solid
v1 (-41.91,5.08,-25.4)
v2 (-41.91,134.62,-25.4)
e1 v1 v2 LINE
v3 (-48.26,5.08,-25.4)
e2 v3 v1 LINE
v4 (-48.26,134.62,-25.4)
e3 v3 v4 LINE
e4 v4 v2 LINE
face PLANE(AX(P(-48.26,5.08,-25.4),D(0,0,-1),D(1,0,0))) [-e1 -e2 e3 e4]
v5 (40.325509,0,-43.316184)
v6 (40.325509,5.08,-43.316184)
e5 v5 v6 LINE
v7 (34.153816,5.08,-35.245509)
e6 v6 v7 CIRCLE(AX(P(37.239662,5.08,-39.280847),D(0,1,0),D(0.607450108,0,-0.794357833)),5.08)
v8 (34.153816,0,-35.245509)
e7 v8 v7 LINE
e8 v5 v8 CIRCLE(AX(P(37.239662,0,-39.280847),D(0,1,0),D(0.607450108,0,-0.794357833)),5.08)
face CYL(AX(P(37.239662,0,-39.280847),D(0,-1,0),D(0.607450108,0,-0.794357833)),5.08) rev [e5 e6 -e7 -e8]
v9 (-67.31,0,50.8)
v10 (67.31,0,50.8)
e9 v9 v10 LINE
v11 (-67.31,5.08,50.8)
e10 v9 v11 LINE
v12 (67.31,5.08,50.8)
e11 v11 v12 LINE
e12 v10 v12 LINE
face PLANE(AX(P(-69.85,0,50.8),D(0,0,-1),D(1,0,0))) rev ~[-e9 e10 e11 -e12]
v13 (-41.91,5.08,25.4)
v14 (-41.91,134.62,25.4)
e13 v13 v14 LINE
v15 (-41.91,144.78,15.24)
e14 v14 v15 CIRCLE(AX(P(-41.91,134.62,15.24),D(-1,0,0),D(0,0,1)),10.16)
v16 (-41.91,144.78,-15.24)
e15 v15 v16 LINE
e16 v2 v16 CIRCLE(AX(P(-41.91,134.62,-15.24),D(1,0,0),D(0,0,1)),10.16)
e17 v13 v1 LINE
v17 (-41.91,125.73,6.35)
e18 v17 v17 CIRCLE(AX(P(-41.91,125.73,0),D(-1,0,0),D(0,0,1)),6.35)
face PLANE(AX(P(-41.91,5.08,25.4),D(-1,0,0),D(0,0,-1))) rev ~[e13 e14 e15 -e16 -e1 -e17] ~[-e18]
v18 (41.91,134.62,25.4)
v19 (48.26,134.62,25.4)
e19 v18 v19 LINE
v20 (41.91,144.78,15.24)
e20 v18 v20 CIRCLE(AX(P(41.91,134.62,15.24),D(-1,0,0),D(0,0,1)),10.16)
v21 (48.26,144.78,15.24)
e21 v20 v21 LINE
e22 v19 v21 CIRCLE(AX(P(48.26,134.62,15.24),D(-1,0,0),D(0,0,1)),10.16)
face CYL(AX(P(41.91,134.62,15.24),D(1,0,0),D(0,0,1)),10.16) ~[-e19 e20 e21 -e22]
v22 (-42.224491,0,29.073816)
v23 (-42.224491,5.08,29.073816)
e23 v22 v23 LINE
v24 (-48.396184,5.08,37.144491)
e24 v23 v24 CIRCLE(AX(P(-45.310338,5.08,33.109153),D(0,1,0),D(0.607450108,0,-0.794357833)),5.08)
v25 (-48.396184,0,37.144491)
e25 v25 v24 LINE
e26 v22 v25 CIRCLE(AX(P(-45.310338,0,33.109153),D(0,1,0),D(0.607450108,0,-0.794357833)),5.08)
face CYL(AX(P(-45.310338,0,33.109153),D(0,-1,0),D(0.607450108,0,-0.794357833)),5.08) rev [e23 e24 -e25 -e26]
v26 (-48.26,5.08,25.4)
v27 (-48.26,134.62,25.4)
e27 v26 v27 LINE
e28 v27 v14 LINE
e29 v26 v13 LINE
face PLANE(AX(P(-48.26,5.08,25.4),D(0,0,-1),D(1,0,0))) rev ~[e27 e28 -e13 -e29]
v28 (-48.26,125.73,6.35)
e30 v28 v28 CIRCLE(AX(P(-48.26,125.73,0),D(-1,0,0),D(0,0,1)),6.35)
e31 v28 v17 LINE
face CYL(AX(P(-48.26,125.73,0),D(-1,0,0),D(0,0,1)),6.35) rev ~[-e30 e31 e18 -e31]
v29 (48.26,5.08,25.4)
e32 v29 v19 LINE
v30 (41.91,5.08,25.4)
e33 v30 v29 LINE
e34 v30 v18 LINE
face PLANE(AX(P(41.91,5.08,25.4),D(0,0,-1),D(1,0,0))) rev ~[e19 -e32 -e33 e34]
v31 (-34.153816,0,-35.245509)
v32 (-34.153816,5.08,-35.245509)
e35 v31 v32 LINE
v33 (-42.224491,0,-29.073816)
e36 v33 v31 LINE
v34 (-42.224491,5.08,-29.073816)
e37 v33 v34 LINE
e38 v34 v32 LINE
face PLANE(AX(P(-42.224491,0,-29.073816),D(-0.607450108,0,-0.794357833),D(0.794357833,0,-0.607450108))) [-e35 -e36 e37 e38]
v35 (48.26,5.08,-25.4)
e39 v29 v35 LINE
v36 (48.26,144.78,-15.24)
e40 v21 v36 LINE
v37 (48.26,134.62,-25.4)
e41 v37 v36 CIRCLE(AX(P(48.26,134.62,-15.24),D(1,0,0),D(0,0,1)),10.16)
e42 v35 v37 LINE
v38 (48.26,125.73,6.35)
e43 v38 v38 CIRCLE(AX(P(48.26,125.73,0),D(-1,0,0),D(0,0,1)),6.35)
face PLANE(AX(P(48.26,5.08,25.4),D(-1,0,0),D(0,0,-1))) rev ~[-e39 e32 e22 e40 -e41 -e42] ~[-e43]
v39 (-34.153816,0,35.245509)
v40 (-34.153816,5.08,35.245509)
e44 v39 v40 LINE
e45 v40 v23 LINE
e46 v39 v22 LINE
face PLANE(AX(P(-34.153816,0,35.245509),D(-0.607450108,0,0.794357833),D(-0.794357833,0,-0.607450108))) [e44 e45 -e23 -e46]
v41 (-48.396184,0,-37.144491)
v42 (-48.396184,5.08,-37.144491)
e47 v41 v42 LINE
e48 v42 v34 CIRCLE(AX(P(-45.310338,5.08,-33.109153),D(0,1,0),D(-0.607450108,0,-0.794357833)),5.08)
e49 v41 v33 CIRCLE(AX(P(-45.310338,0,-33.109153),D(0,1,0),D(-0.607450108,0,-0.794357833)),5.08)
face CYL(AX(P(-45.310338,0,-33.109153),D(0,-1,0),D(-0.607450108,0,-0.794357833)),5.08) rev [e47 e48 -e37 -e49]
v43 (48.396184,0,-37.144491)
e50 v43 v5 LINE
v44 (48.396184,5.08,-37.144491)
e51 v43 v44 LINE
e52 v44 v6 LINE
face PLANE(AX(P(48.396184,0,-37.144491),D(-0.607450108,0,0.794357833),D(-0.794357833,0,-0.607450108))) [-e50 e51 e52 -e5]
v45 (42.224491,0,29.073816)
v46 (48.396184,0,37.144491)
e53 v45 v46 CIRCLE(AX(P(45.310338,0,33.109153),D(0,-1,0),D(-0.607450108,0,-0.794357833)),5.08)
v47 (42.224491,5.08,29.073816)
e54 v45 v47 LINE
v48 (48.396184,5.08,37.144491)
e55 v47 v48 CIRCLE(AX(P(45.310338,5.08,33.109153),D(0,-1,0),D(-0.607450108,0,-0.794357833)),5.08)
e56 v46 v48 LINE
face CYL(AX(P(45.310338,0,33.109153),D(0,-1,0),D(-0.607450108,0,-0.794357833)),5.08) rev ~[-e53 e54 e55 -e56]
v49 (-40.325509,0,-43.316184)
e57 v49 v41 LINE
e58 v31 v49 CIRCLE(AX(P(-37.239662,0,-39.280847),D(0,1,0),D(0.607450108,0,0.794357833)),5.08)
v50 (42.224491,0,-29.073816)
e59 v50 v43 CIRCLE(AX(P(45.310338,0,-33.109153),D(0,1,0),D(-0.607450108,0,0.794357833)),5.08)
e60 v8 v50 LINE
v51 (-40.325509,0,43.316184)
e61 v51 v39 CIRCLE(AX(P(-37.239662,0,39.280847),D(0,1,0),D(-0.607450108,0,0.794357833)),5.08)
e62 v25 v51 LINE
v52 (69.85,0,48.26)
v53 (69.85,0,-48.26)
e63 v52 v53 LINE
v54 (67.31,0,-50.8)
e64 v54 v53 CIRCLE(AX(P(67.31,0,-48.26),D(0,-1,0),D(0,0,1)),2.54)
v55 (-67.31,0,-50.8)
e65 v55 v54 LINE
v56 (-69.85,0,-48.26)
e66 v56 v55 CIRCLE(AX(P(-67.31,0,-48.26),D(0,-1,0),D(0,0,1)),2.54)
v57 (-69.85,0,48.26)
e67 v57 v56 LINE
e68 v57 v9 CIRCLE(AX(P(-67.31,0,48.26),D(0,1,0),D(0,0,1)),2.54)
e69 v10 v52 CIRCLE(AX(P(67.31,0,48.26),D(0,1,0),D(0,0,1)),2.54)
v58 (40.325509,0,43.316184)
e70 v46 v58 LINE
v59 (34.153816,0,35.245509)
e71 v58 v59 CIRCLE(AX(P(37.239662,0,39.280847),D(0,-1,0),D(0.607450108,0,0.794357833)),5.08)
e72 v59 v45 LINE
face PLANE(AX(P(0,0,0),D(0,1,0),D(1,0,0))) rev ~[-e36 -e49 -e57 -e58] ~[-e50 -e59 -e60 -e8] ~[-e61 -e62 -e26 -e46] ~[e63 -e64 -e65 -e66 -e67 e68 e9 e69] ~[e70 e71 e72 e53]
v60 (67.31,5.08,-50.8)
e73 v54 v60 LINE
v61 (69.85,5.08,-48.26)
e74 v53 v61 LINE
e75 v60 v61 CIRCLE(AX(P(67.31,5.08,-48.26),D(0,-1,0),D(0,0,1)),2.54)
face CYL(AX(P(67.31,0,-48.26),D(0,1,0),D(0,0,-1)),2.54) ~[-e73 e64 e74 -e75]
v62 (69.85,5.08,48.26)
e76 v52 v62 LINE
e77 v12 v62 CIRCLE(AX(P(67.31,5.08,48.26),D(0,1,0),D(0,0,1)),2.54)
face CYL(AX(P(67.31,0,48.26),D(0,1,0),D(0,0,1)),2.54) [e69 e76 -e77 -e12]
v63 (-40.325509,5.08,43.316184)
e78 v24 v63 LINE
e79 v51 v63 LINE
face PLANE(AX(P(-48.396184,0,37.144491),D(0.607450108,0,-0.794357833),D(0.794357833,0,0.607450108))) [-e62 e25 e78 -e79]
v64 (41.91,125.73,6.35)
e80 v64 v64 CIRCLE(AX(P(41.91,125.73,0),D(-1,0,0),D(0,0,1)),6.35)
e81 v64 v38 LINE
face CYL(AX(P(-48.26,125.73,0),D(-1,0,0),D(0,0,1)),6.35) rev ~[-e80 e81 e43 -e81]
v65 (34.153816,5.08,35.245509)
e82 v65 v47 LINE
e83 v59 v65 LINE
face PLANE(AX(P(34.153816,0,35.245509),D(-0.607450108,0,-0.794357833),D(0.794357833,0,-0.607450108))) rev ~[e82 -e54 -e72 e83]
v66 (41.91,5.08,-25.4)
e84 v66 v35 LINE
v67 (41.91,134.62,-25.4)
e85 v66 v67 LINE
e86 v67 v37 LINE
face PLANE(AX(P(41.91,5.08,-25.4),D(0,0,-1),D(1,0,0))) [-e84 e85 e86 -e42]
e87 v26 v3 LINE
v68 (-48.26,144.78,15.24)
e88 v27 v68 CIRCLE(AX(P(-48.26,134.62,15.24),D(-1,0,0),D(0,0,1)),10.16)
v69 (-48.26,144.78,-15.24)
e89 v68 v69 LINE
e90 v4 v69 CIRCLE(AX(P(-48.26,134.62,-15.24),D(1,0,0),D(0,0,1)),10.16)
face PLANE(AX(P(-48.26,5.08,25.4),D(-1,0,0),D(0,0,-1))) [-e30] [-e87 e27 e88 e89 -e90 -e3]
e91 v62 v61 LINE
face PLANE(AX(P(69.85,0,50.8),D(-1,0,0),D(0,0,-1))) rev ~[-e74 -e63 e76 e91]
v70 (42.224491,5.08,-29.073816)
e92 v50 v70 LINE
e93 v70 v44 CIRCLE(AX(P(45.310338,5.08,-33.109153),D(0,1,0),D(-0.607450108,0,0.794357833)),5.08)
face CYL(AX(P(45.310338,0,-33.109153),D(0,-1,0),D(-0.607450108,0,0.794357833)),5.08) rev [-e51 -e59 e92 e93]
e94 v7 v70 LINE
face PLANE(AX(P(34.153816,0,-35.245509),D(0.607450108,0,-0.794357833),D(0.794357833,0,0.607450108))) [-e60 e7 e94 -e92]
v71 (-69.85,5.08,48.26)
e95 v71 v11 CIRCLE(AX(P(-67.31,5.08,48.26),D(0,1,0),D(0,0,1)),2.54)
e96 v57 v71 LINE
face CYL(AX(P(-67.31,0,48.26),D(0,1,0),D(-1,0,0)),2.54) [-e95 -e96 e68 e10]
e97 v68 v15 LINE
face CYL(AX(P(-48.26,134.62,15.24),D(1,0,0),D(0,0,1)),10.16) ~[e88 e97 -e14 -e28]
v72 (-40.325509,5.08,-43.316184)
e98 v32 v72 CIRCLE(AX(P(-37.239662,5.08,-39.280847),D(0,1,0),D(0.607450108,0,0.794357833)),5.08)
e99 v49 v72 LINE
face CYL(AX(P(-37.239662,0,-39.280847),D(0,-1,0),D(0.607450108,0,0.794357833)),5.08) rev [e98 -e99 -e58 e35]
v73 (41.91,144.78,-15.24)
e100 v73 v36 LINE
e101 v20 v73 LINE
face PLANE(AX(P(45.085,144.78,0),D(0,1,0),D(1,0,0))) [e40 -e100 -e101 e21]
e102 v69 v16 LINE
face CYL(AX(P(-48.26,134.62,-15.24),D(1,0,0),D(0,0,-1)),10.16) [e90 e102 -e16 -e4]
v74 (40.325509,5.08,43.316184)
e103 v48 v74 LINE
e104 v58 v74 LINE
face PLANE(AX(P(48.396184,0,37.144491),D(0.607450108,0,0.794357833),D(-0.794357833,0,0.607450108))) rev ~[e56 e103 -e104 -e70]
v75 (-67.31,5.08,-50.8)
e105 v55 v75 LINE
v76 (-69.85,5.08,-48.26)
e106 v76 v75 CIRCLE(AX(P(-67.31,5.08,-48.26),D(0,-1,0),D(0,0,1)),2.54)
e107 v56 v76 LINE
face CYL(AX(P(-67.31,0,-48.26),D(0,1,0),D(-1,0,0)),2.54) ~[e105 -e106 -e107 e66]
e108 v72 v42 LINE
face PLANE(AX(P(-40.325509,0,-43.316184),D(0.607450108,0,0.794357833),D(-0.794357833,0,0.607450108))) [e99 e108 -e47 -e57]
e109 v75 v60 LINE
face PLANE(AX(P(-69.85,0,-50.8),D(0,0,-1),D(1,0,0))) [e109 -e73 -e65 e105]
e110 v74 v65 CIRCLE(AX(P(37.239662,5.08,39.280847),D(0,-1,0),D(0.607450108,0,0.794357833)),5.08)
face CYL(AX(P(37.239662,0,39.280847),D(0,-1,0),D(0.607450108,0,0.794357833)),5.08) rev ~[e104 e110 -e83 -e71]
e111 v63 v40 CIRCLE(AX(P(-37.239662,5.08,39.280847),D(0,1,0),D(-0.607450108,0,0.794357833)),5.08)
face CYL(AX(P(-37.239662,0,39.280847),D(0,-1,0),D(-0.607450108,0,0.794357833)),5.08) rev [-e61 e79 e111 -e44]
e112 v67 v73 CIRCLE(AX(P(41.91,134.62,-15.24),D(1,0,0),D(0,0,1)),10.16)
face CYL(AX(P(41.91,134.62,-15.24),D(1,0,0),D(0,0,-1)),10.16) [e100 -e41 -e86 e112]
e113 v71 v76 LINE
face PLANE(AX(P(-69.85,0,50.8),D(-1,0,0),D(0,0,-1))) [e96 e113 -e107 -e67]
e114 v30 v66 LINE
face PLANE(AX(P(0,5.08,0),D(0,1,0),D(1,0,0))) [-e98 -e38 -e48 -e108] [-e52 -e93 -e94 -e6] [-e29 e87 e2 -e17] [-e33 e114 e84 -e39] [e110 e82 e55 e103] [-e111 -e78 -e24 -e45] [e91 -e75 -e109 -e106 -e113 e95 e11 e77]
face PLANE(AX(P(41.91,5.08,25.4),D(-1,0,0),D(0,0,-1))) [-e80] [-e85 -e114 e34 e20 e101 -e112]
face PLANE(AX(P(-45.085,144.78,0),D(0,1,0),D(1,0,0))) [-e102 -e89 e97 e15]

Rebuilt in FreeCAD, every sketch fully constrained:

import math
import FreeCAD as App
import Part
import Sketcher

V = App.Vector
Q = App.Units.Quantity


def edges_at(feature, points):
    """Names of the edges that pass closest to the given points."""
    edges = feature.Shape.Edges
    near = lambda p: min(range(len(edges)), key=lambda i: edges[i].distToShape(Part.Vertex(*p))[0])
    return sorted({f"Edge{near(p) + 1}" for p in points})


def add_polygon(sketch, points):
    """Adds a closed chain of lines whose ends are joined by coincident constraints."""
    first, n = sketch.GeometryCount, len(points)
    for a, b in zip(points, points[1:] + points[:1]):
        sketch.addGeometry(Part.LineSegment(App.Vector(*a, 0), App.Vector(*b, 0)), False)
    for i in range(n):
        sketch.addConstraint(Sketcher.Constraint("Coincident", first + i, 2, first + (i + 1) % n, 1))

doc = App.newDocument("Part")
body = doc.addObject("PartDesign::Body", "Body")

# Sketch on XZ plane
sketch1 = doc.addObject("Sketcher::SketchObject", "Sketch")
body.addObject(sketch1)
sketch1.AttachmentSupport = (doc.XZ_Plane, [""])
sketch1.MapMode = "FlatFace"
add_polygon(sketch1, [(-70, -51), (-70, 51), (70, 51), (70, -51)])  # lines 0-3
sketch1.addGeometry(Part.ArcOfCircle(Part.Circle(V(-37, 39, 0), V(0, 0, 1), 5), math.radians(-53), math.radians(127)), False)  # 4
sketch1.addGeometry(Part.LineSegment(V(-40, 43, 0), V(-48, 37, 0)), False)  # 5
sketch1.addGeometry(Part.ArcOfCircle(Part.Circle(V(-45, 33, 0), V(0, 0, 1), 5), math.radians(127), math.radians(307)), False)  # 6
sketch1.addGeometry(Part.LineSegment(V(-42, 29, 0), V(-34, 35, 0)), False)  # 7
sketch1.addGeometry(Part.ArcOfCircle(Part.Circle(V(45, 33, 0), V(0, 0, 1), 5), math.radians(-127), math.radians(53)), False)  # 8
sketch1.addGeometry(Part.LineSegment(V(48, 37, 0), V(40, 43, 0)), False)  # 9
sketch1.addGeometry(Part.ArcOfCircle(Part.Circle(V(37, 39, 0), V(0, 0, 1), 5), math.radians(53), math.radians(233)), False)  # 10
sketch1.addGeometry(Part.LineSegment(V(34, 35, 0), V(42, 29, 0)), False)  # 11
sketch1.addGeometry(Part.ArcOfCircle(Part.Circle(V(-45, -33, 0), V(0, 0, 1), 5), math.radians(53), math.radians(233)), False)  # 12
sketch1.addGeometry(Part.LineSegment(V(-48, -37, 0), V(-40, -43, 0)), False)  # 13
sketch1.addGeometry(Part.ArcOfCircle(Part.Circle(V(-37, -39, 0), V(0, 0, 1), 5), math.radians(-127), math.radians(53)), False)  # 14
sketch1.addGeometry(Part.LineSegment(V(-34, -35, 0), V(-42, -29, 0)), False)  # 15
sketch1.addGeometry(Part.ArcOfCircle(Part.Circle(V(37, -39, 0), V(0, 0, 1), 5), math.radians(127), math.radians(307)), False)  # 16
sketch1.addGeometry(Part.LineSegment(V(40, -43, 0), V(48, -37, 0)), False)  # 17
sketch1.addGeometry(Part.ArcOfCircle(Part.Circle(V(45, -33, 0), V(0, 0, 1), 5), math.radians(-53), math.radians(127)), False)  # 18
sketch1.addGeometry(Part.LineSegment(V(42, -29, 0), V(34, -35, 0)), False)  # 19
sketch1.addConstraint(Sketcher.Constraint("Tangent", 4, 2, 5, 1))
sketch1.addConstraint(Sketcher.Constraint("Tangent", 5, 2, 6, 1))
sketch1.addConstraint(Sketcher.Constraint("Tangent", 6, 2, 7, 1))
sketch1.addConstraint(Sketcher.Constraint("Tangent", 7, 2, 4, 1))
sketch1.addConstraint(Sketcher.Constraint("Tangent", 8, 2, 9, 1))
sketch1.addConstraint(Sketcher.Constraint("Tangent", 9, 2, 10, 1))
sketch1.addConstraint(Sketcher.Constraint("Tangent", 10, 2, 11, 1))
sketch1.addConstraint(Sketcher.Constraint("Tangent", 11, 2, 8, 1))
sketch1.addConstraint(Sketcher.Constraint("Tangent", 12, 2, 13, 1))
sketch1.addConstraint(Sketcher.Constraint("Tangent", 13, 2, 14, 1))
sketch1.addConstraint(Sketcher.Constraint("Tangent", 14, 2, 15, 1))
sketch1.addConstraint(Sketcher.Constraint("Tangent", 15, 2, 12, 1))
sketch1.addConstraint(Sketcher.Constraint("Tangent", 16, 2, 17, 1))
sketch1.addConstraint(Sketcher.Constraint("Tangent", 17, 2, 18, 1))
sketch1.addConstraint(Sketcher.Constraint("Tangent", 18, 2, 19, 1))
sketch1.addConstraint(Sketcher.Constraint("Tangent", 19, 2, 16, 1))
sketch1.addConstraint(Sketcher.Constraint("Vertical", 0))
sketch1.addConstraint(Sketcher.Constraint("Horizontal", 1))
sketch1.addConstraint(Sketcher.Constraint("Vertical", 2))
sketch1.addConstraint(Sketcher.Constraint("Horizontal", 3))
sketch1.addConstraint(Sketcher.Constraint("Equal", 4, 6))
sketch1.addConstraint(Sketcher.Constraint("Equal", 6, 8))
sketch1.addConstraint(Sketcher.Constraint("Equal", 8, 10))
sketch1.addConstraint(Sketcher.Constraint("Equal", 10, 12))
sketch1.addConstraint(Sketcher.Constraint("Equal", 12, 14))
sketch1.addConstraint(Sketcher.Constraint("Equal", 14, 16))
sketch1.addConstraint(Sketcher.Constraint("Equal", 16, 18))
sketch1.addConstraint(Sketcher.Constraint("Symmetric", 8, 3, 12, 3, -1, 1))
sketch1.addConstraint(Sketcher.Constraint("Symmetric", 10, 3, 14, 3, -1, 1))
sketch1.addConstraint(Sketcher.Constraint("Symmetric", 4, 3, 16, 3, -1, 1))
sketch1.addConstraint(Sketcher.Constraint("Symmetric", 6, 3, 18, 3, -1, 1))
sketch1.addConstraint(Sketcher.Constraint("Symmetric", 0, 2, 2, 2, -1, 1))
sketch1.addConstraint(Sketcher.Constraint("Symmetric", 6, 3, 8, 3, -2))
sketch1.addConstraint(Sketcher.Constraint("Symmetric", 4, 3, 10, 3, -2))
sketch1.addConstraint(Sketcher.Constraint("Radius", 4, Q("0.2 in")))
sketch1.addConstraint(Sketcher.Constraint("DistanceY", 0, 1, 0, 2, Q("4 in")))
sketch1.addConstraint(Sketcher.Constraint("DistanceX", 1, 1, 1, 2, Q("5.5 in")))
sketch1.addConstraint(Sketcher.Constraint("Distance", 5, Q("0.4 in")))
sketch1.addConstraint(Sketcher.Constraint("DistanceX", 4, 3, 8, 3, Q("3.25 in")))
sketch1.addConstraint(Sketcher.Constraint("DistanceY", 12, 3, 4, 3, Q("2.85 in")))
sketch1.addConstraint(Sketcher.Constraint("DistanceX", 4, 2, -1, 1, Q("40.325509 mm")))
pad1 = doc.addObject("PartDesign::Pad", "Pad")
body.addObject(pad1)
pad1.Profile = sketch1
pad1.Length = Q("0.2 in")
pad1.Reversed = True
doc.recompute()

fillet = doc.addObject("PartDesign::Fillet", "Fillet")
body.addObject(fillet)
fillet.Base = (pad1, edges_at(pad1, [
    (69.85, 2.54, -50.8),
    (69.85, 2.54, 50.8),
    (-69.85, 2.54, 50.8),
    (-69.85, 2.54, -50.8),
]))
fillet.Radius = Q("0.1 in")

# Sketch on XZ plane
sketch2 = doc.addObject("Sketcher::SketchObject", "Sketch001")
body.addObject(sketch2)
sketch2.AttachmentSupport = (doc.XZ_Plane, [""])
sketch2.MapMode = "FlatFace"
sketch2.AttachmentOffset = App.Placement(V(0, 0, -0.2 * 25.4), App.Rotation())
add_polygon(sketch2, [(42, -25), (42, 25), (48, 25), (48, -25)])  # lines 0-3
add_polygon(sketch2, [(-48, -25), (-48, 25), (-42, 25), (-42, -25)])  # lines 4-7
sketch2.addConstraint(Sketcher.Constraint("Vertical", 0))
sketch2.addConstraint(Sketcher.Constraint("Horizontal", 1))
sketch2.addConstraint(Sketcher.Constraint("Vertical", 2))
sketch2.addConstraint(Sketcher.Constraint("Horizontal", 3))
sketch2.addConstraint(Sketcher.Constraint("Vertical", 4))
sketch2.addConstraint(Sketcher.Constraint("Horizontal", 5))
sketch2.addConstraint(Sketcher.Constraint("Vertical", 6))
sketch2.addConstraint(Sketcher.Constraint("Horizontal", 7))
sketch2.addConstraint(Sketcher.Constraint("Symmetric", 2, 2, 4, 2, -1, 1))
sketch2.addConstraint(Sketcher.Constraint("Symmetric", 0, 2, 6, 2, -1, 1))
sketch2.addConstraint(Sketcher.Constraint("Horizontal", 1, 2, 4, 2))
sketch2.addConstraint(Sketcher.Constraint("DistanceY", 0, 1, 0, 2, Q("2 in")))
sketch2.addConstraint(Sketcher.Constraint("DistanceX", 1, 1, 1, 2, Q("0.25 in")))
sketch2.addConstraint(Sketcher.Constraint("DistanceX", -1, 1, 1, 2, Q("1.9 in")))
pad2 = doc.addObject("PartDesign::Pad", "Pad001")
body.addObject(pad2)
pad2.Profile = sketch2
pad2.Length = Q("5.5 in")
pad2.Reversed = True
doc.recompute()

fillet2 = doc.addObject("PartDesign::Fillet", "Fillet001")
body.addObject(fillet2)
fillet2.Base = (pad2, edges_at(pad2, [
    (-45.085, 144.78, -25.4),
    (-45.085, 144.78, 25.4),
    (45.085, 144.78, -25.4),
    (45.085, 144.78, 25.4),
]))
fillet2.Radius = Q("0.4 in")

# Sketch on YZ plane
sketch3 = doc.addObject("Sketcher::SketchObject", "Sketch002")
body.addObject(sketch3)
sketch3.AttachmentSupport = (doc.YZ_Plane, [""])
sketch3.MapMode = "FlatFace"
sketch3.AttachmentOffset = App.Placement(V(0, 0, -1.9 * 25.4), App.Rotation())
sketch3.addGeometry(Part.Circle(V(126, 0, 0), V(0, 0, 1), 6), False)
sketch3.addConstraint(Sketcher.Constraint("PointOnObject", 0, 3, -1))
sketch3.addConstraint(Sketcher.Constraint("Diameter", 0, Q("0.5 in")))
sketch3.addConstraint(Sketcher.Constraint("DistanceX", -1, 1, 0, 3, Q("4.95 in")))
pocket1 = doc.addObject("PartDesign::Pocket", "Pocket")
body.addObject(pocket1)
pocket1.Profile = sketch3
pocket1.Type = "ThroughAll"
pocket1.Reversed = True

doc.recompute()
